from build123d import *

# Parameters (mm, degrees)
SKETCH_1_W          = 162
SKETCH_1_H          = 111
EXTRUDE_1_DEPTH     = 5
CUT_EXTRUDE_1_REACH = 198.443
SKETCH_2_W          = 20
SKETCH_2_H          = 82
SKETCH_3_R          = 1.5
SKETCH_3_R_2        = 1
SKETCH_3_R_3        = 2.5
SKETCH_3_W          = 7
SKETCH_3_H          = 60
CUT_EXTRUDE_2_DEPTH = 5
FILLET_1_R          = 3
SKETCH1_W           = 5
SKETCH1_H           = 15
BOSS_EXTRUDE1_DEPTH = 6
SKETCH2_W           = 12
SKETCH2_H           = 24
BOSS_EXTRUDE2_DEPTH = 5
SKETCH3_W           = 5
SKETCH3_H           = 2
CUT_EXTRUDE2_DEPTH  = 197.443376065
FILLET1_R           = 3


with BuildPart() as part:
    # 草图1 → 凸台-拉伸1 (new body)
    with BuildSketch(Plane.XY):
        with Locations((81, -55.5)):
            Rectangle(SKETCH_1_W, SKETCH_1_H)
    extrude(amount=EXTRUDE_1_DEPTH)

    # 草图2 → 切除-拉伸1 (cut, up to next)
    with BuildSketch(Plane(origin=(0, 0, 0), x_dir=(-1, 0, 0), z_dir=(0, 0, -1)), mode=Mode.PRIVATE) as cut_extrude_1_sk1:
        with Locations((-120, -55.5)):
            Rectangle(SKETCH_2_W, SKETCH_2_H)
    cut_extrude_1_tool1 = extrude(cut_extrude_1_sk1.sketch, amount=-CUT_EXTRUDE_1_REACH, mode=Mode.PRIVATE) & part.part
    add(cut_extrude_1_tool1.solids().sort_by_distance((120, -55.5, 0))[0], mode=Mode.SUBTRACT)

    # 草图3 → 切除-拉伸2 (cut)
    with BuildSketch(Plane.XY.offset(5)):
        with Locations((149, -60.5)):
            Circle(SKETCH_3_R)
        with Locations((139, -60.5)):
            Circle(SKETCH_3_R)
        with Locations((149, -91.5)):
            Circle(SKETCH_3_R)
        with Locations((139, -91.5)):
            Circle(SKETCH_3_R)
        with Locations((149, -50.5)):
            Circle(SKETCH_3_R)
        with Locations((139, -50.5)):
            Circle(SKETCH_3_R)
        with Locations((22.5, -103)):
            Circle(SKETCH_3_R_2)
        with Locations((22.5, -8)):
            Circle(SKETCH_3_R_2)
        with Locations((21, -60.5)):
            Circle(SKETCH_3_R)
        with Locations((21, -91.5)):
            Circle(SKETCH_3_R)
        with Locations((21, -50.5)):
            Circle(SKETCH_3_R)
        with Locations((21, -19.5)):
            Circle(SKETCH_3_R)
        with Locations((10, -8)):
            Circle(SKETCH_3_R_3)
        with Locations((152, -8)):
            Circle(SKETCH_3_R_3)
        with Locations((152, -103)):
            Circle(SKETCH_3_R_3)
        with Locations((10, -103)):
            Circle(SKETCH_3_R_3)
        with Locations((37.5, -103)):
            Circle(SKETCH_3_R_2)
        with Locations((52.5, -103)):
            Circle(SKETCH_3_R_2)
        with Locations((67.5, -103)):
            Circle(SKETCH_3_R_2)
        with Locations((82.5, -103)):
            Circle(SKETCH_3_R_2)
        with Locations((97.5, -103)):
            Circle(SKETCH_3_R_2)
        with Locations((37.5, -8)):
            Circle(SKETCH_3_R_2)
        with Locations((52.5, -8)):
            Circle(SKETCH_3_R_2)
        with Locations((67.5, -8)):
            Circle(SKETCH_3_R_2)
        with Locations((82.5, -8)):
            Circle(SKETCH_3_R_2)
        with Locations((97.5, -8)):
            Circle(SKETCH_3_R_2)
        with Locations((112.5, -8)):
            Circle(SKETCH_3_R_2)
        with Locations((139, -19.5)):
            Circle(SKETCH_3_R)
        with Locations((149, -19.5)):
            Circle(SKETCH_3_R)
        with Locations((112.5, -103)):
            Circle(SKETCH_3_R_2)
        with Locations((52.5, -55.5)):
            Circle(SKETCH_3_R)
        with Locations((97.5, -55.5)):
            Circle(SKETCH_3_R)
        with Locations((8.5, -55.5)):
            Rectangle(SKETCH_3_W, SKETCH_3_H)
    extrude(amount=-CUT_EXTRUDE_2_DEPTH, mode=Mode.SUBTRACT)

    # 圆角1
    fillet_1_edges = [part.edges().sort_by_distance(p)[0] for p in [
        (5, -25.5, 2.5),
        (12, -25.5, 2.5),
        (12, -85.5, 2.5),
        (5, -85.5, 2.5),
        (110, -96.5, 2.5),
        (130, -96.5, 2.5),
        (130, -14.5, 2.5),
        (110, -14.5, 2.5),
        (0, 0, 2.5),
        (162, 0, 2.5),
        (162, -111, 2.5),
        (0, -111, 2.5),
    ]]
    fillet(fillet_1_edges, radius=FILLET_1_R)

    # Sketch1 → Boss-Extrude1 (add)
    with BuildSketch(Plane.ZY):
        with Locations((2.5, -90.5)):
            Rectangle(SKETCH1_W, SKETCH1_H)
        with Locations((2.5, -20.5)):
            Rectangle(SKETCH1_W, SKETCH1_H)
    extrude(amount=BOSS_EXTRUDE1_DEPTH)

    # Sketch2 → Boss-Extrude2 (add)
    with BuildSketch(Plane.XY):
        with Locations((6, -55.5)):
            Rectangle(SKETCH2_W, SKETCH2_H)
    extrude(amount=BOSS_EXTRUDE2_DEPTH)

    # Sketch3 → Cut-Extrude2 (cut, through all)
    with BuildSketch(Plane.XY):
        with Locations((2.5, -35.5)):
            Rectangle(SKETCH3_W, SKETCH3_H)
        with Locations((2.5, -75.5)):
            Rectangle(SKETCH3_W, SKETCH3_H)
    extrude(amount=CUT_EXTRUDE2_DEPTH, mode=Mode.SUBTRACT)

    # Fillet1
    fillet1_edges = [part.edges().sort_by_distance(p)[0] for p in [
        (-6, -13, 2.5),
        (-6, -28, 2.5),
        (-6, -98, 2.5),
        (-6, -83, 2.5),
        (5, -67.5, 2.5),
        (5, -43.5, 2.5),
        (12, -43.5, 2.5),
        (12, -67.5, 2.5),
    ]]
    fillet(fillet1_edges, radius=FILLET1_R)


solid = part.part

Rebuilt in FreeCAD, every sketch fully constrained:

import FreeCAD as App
import Part
import Sketcher
from FreeCAD import Vector


def edges_at(feature, points):
    """Names of the edges that pass closest to the given points."""
    edges = feature.Shape.Edges
    near = lambda p: min(range(len(edges)), key=lambda i: edges[i].distToShape(Part.Vertex(*p))[0])
    return sorted({f"Edge{near(p) + 1}" for p in points})

doc = App.newDocument("Part")
body = doc.addObject("PartDesign::Body", "Body")

# Sketch on XY plane
sketch1 = doc.addObject("Sketcher::SketchObject", "Sketch")
body.addObject(sketch1)
sketch1.AttachmentSupport = (doc.XY_Plane, [""])
sketch1.MapMode = "FlatFace"
sketch1.addGeometry(Part.LineSegment(Vector(0, 0, 0), Vector(0, -111, 0)), False)
sketch1.addGeometry(Part.LineSegment(Vector(0, -111, 0), Vector(162, -111, 0)), False)
sketch1.addGeometry(Part.LineSegment(Vector(162, -111, 0), Vector(162, 0, 0)), False)
sketch1.addGeometry(Part.LineSegment(Vector(162, 0, 0), Vector(0, 0, 0)), False)
sketch1.addConstraint(Sketcher.Constraint("Coincident", 0, 2, 1, 1))
sketch1.addConstraint(Sketcher.Constraint("Coincident", 1, 2, 2, 1))
sketch1.addConstraint(Sketcher.Constraint("Coincident", 2, 2, 3, 1))
sketch1.addConstraint(Sketcher.Constraint("Coincident", 3, 2, 0, 1))
sketch1.addConstraint(Sketcher.Constraint("Vertical", 0))
sketch1.addConstraint(Sketcher.Constraint("Horizontal", 1))
sketch1.addConstraint(Sketcher.Constraint("Vertical", 2))
sketch1.addConstraint(Sketcher.Constraint("Horizontal", 3))
sketch1.addConstraint(Sketcher.Constraint("Coincident", 3, 2, -1, 1))
sketch1.addConstraint(Sketcher.Constraint("DistanceX", 1, 1, 1, 2, 162.0))
sketch1.addConstraint(Sketcher.Constraint("DistanceY", 0, 2, 0, 1, 111.0))
pad1 = doc.addObject("PartDesign::Pad", "Pad")
body.addObject(pad1)
pad1.Profile = sketch1
pad1.Length = 5

# Sketch on XY plane
sketch2 = doc.addObject("Sketcher::SketchObject", "Sketch001")
body.addObject(sketch2)
sketch2.AttachmentSupport = (doc.XY_Plane, [""])
sketch2.MapMode = "FlatFace"
sketch2.addGeometry(Part.LineSegment(Vector(130, -14, 0), Vector(130, -96, 0)), False)
sketch2.addGeometry(Part.LineSegment(Vector(130, -96, 0), Vector(110, -96, 0)), False)
sketch2.addGeometry(Part.LineSegment(Vector(110, -96, 0), Vector(110, -14, 0)), False)
sketch2.addGeometry(Part.LineSegment(Vector(110, -14, 0), Vector(130, -14, 0)), False)
sketch2.addConstraint(Sketcher.Constraint("Coincident", 0, 2, 1, 1))
sketch2.addConstraint(Sketcher.Constraint("Coincident", 1, 2, 2, 1))
sketch2.addConstraint(Sketcher.Constraint("Coincident", 2, 2, 3, 1))
sketch2.addConstraint(Sketcher.Constraint("Coincident", 3, 2, 0, 1))
sketch2.addConstraint(Sketcher.Constraint("Vertical", 0))
sketch2.addConstraint(Sketcher.Constraint("Horizontal", 1))
sketch2.addConstraint(Sketcher.Constraint("Vertical", 2))
sketch2.addConstraint(Sketcher.Constraint("Horizontal", 3))
sketch2.addConstraint(Sketcher.Constraint("DistanceX", 1, 2, 1, 1, 20.0))
sketch2.addConstraint(Sketcher.Constraint("DistanceY", 0, 2, 0, 1, 82.0))
sketch2.addConstraint(Sketcher.Constraint("DistanceX", -1, 1, 0, 2, 130.0))
sketch2.addConstraint(Sketcher.Constraint("DistanceY", 0, 2, -1, 1, 96.5))
pocket1 = doc.addObject("PartDesign::Pocket", "Pocket")
body.addObject(pocket1)
pocket1.Profile = sketch2
pocket1.Type = "UpToFirst"
pocket1.Reversed = True

# Sketch on XY plane
sketch3 = doc.addObject("Sketcher::SketchObject", "Sketch002")
body.addObject(sketch3)
sketch3.AttachmentSupport = (doc.XY_Plane, [""])
sketch3.MapMode = "FlatFace"
sketch3.AttachmentOffset = App.Placement(Vector(0, 0, 5), App.Rotation())
sketch3.addGeometry(Part.Circle(Vector(149, -60.5, 0), Vector(0, 0, 1), 1.5), False)
sketch3.addGeometry(Part.Circle(Vector(139, -60.5, 0), Vector(0, 0, 1), 1.5), False)
sketch3.addGeometry(Part.Circle(Vector(149, -91.5, 0), Vector(0, 0, 1), 1.5), False)
sketch3.addGeometry(Part.Circle(Vector(139, -91.5, 0), Vector(0, 0, 1), 1.5), False)
sketch3.addGeometry(Part.Circle(Vector(149, -50.5, 0), Vector(0, 0, 1), 1.5), False)
sketch3.addGeometry(Part.Circle(Vector(139, -50.5, 0), Vector(0, 0, 1), 1.5), False)
sketch3.addGeometry(Part.Circle(Vector(22.5, -103, 0), Vector(0, 0, 1), 1), False)
sketch3.addGeometry(Part.Circle(Vector(22.5, -8, 0), Vector(0, 0, 1), 1), False)
sketch3.addGeometry(Part.Circle(Vector(21, -60.5, 0), Vector(0, 0, 1), 1.5), False)
sketch3.addGeometry(Part.Circle(Vector(21, -91.5, 0), Vector(0, 0, 1), 1.5), False)
sketch3.addGeometry(Part.Circle(Vector(21, -50.5, 0), Vector(0, 0, 1), 1.5), False)
sketch3.addGeometry(Part.Circle(Vector(21, -19.5, 0), Vector(0, 0, 1), 1.5), False)
sketch3.addGeometry(Part.Circle(Vector(10, -8, 0), Vector(0, 0, 1), 2.5), False)
sketch3.addGeometry(Part.Circle(Vector(152, -8, 0), Vector(0, 0, 1), 2.5), False)
sketch3.addGeometry(Part.Circle(Vector(152, -103, 0), Vector(0, 0, 1), 2.5), False)
sketch3.addGeometry(Part.Circle(Vector(10, -103, 0), Vector(0, 0, 1), 2.5), False)
sketch3.addGeometry(Part.Circle(Vector(37.5, -103, 0), Vector(0, 0, 1), 1), False)
sketch3.addGeometry(Part.Circle(Vector(52.5, -103, 0), Vector(0, 0, 1), 1), False)
sketch3.addGeometry(Part.Circle(Vector(67.5, -103, 0), Vector(0, 0, 1), 1), False)
sketch3.addGeometry(Part.Circle(Vector(82.5, -103, 0), Vector(0, 0, 1), 1), False)
sketch3.addGeometry(Part.Circle(Vector(97.5, -103, 0), Vector(0, 0, 1), 1), False)
sketch3.addGeometry(Part.Circle(Vector(37.5, -8, 0), Vector(0, 0, 1), 1), False)
sketch3.addGeometry(Part.Circle(Vector(52.5, -8, 0), Vector(0, 0, 1), 1), False)
sketch3.addGeometry(Part.Circle(Vector(67.5, -8, 0), Vector(0, 0, 1), 1), False)
sketch3.addGeometry(Part.Circle(Vector(82.5, -8, 0), Vector(0, 0, 1), 1), False)
sketch3.addGeometry(Part.Circle(Vector(97.5, -8, 0), Vector(0, 0, 1), 1), False)
sketch3.addGeometry(Part.Circle(Vector(112.5, -8, 0), Vector(0, 0, 1), 1), False)
sketch3.addGeometry(Part.Circle(Vector(139, -19.5, 0), Vector(0, 0, 1), 1.5), False)
sketch3.addGeometry(Part.Circle(Vector(149, -19.5, 0), Vector(0, 0, 1), 1.5), False)
sketch3.addGeometry(Part.Circle(Vector(112.5, -103, 0), Vector(0, 0, 1), 1), False)
sketch3.addGeometry(Part.Circle(Vector(52.5, -55.5, 0), Vector(0, 0, 1), 1.5), False)
sketch3.addGeometry(Part.Circle(Vector(97.5, -55.5, 0), Vector(0, 0, 1), 1.5), False)
sketch3.addGeometry(Part.LineSegment(Vector(5, -25.5, 0), Vector(5, -85.5, 0)), False)
sketch3.addGeometry(Part.LineSegment(Vector(5, -85.5, 0), Vector(12, -85.5, 0)), False)
sketch3.addGeometry(Part.LineSegment(Vector(12, -85.5, 0), Vector(12, -25.5, 0)), False)
sketch3.addGeometry(Part.LineSegment(Vector(12, -25.5, 0), Vector(5, -25.5, 0)), False)
sketch3.addConstraint(Sketcher.Constraint("Coincident", 32, 2, 33, 1))
sketch3.addConstraint(Sketcher.Constraint("Coincident", 33, 2, 34, 1))
sketch3.addConstraint(Sketcher.Constraint("Coincident", 34, 2, 35, 1))
sketch3.addConstraint(Sketcher.Constraint("Coincident", 35, 2, 32, 1))
sketch3.addConstraint(Sketcher.Constraint("Vertical", 32))
sketch3.addConstraint(Sketcher.Constraint("Horizontal", 33))
sketch3.addConstraint(Sketcher.Constraint("Vertical", 34))
sketch3.addConstraint(Sketcher.Constraint("Horizontal", 35))
sketch3.addConstraint(Sketcher.Constraint("Equal", 0, 1))
sketch3.addConstraint(Sketcher.Constraint("Equal", 1, 2))
sketch3.addConstraint(Sketcher.Constraint("Equal", 2, 3))
sketch3.addConstraint(Sketcher.Constraint("Equal", 3, 4))
sketch3.addConstraint(Sketcher.Constraint("Equal", 4, 5))
sketch3.addConstraint(Sketcher.Constraint("Equal", 6, 7))
sketch3.addConstraint(Sketcher.Constraint("Equal", 5, 8))
sketch3.addConstraint(Sketcher.Constraint("Equal", 8, 9))
sketch3.addConstraint(Sketcher.Constraint("Equal", 9, 10))
sketch3.addConstraint(Sketcher.Constraint("Equal", 10, 11))
sketch3.addConstraint(Sketcher.Constraint("Equal", 12, 13))
sketch3.addConstraint(Sketcher.Constraint("Equal", 13, 14))
sketch3.addConstraint(Sketcher.Constraint("Equal", 14, 15))
sketch3.addConstraint(Sketcher.Constraint("Equal", 7, 16))
sketch3.addConstraint(Sketcher.Constraint("Equal", 16, 17))
sketch3.addConstraint(Sketcher.Constraint("Equal", 17, 18))
sketch3.addConstraint(Sketcher.Constraint("Equal", 18, 19))
sketch3.addConstraint(Sketcher.Constraint("Equal", 19, 20))
sketch3.addConstraint(Sketcher.Constraint("Equal", 20, 21))
sketch3.addConstraint(Sketcher.Constraint("Equal", 21, 22))
sketch3.addConstraint(Sketcher.Constraint("Equal", 22, 23))
sketch3.addConstraint(Sketcher.Constraint("Equal", 23, 24))
sketch3.addConstraint(Sketcher.Constraint("Equal", 24, 25))
sketch3.addConstraint(Sketcher.Constraint("Equal", 25, 26))
sketch3.addConstraint(Sketcher.Constraint("Equal", 11, 27))
sketch3.addConstraint(Sketcher.Constraint("Equal", 27, 28))
sketch3.addConstraint(Sketcher.Constraint("Equal", 26, 29))
sketch3.addConstraint(Sketcher.Constraint("Equal", 28, 30))
sketch3.addConstraint(Sketcher.Constraint("Equal", 30, 31))
sketch3.addConstraint(Sketcher.Constraint("Horizontal", 0, 3, 1, 3))
sketch3.addConstraint(Sketcher.Constraint("Horizontal", 2, 3, 3, 3))
sketch3.addConstraint(Sketcher.Constraint("Horizontal", 4, 3, 5, 3))
sketch3.addConstraint(Sketcher.Constraint("Horizontal", 1, 3, 8, 3))
sketch3.addConstraint(Sketcher.Constraint("Horizontal", 3, 3, 9, 3))
sketch3.addConstraint(Sketcher.Constraint("Horizontal", 5, 3, 10, 3))
sketch3.addConstraint(Sketcher.Constraint("Horizontal", 7, 3, 12, 3))
sketch3.addConstraint(Sketcher.Constraint("Horizontal", 12, 3, 13, 3))
sketch3.addConstraint(Sketcher.Constraint("Horizontal", 6, 3, 14, 3))
sketch3.addConstraint(Sketcher.Constraint("Horizontal", 14, 3, 15, 3))
sketch3.addConstraint(Sketcher.Constraint("Horizontal", 15, 3, 16, 3))
sketch3.addConstraint(Sketcher.Constraint("Horizontal", 16, 3, 17, 3))
sketch3.addConstraint(Sketcher.Constraint("Horizontal", 17, 3, 18, 3))
sketch3.addConstraint(Sketcher.Constraint("Horizontal", 18, 3, 19, 3))
sketch3.addConstraint(Sketcher.Constraint("Horizontal", 19, 3, 20, 3))
sketch3.addConstraint(Sketcher.Constraint("Horizontal", 13, 3, 21, 3))
sketch3.addConstraint(Sketcher.Constraint("Horizontal", 21, 3, 22, 3))
sketch3.addConstraint(Sketcher.Constraint("Horizontal", 22, 3, 23, 3))
sketch3.addConstraint(Sketcher.Constraint("Horizontal", 23, 3, 24, 3))
sketch3.addConstraint(Sketcher.Constraint("Horizontal", 24, 3, 25, 3))
sketch3.addConstraint(Sketcher.Constraint("Horizontal", 25, 3, 26, 3))
sketch3.addConstraint(Sketcher.Constraint("Horizontal", 11, 3, 27, 3))
sketch3.addConstraint(Sketcher.Constraint("Horizontal", 27, 3, 28, 3))
sketch3.addConstraint(Sketcher.Constraint("Horizontal", 20, 3, 29, 3))
sketch3.addConstraint(Sketcher.Constraint("Horizontal", 30, 3, 31, 3))
sketch3.addConstraint(Sketcher.Constraint("Vertical", 0, 3, 2, 3))
sketch3.addConstraint(Sketcher.Constraint("Vertical", 1, 3, 3, 3))
sketch3.addConstraint(Sketcher.Constraint("Vertical", 2, 3, 4, 3))
sketch3.addConstraint(Sketcher.Constraint("Vertical", 3, 3, 5, 3))
sketch3.addConstraint(Sketcher.Constraint("Vertical", 6, 3, 7, 3))
sketch3.addConstraint(Sketcher.Constraint("Vertical", 8, 3, 9, 3))
sketch3.addConstraint(Sketcher.Constraint("Vertical", 9, 3, 10, 3))
sketch3.addConstraint(Sketcher.Constraint("Vertical", 10, 3, 11, 3))
sketch3.addConstraint(Sketcher.Constraint("Vertical", 13, 3, 14, 3))
sketch3.addConstraint(Sketcher.Constraint("Vertical", 12, 3, 15, 3))
sketch3.addConstraint(Sketcher.Constraint("Vertical", 16, 3, 21, 3))
sketch3.addConstraint(Sketcher.Constraint("Vertical", 17, 3, 22, 3))
sketch3.addConstraint(Sketcher.Constraint("Vertical", 18, 3, 23, 3))
sketch3.addConstraint(Sketcher.Constraint("Vertical", 19, 3, 24, 3))
sketch3.addConstraint(Sketcher.Constraint("Vertical", 20, 3, 25, 3))
sketch3.addConstraint(Sketcher.Constraint("Vertical", 5, 3, 27, 3))
sketch3.addConstraint(Sketcher.Constraint("Vertical", 4, 3, 28, 3))
sketch3.addConstraint(Sketcher.Constraint("Vertical", 26, 3, 29, 3))
sketch3.addConstraint(Sketcher.Constraint("Vertical", 22, 3, 30, 3))
sketch3.addConstraint(Sketcher.Constraint("Vertical", 25, 3, 31, 3))
sketch3.addConstraint(Sketcher.Constraint("Diameter", 0, 3.0))
sketch3.addConstraint(Sketcher.Constraint("Diameter", 6, 2.0))
sketch3.addConstraint(Sketcher.Constraint("Diameter", 12, 5.0))
sketch3.addConstraint(Sketcher.Constraint("DistanceX", 33, 1, 33, 2, 7.0))
sketch3.addConstraint(Sketcher.Constraint("DistanceY", 32, 2, 32, 1, 60.0))
sketch3.addConstraint(Sketcher.Constraint("DistanceX", -1, 1, 0, 3, 149.0))
sketch3.addConstraint(Sketcher.Constraint("DistanceX", -1, 1, 1, 3, 139.0))
sketch3.addConstraint(Sketcher.Constraint("DistanceY", 6, 3, -1, 1, 103.0))
sketch3.addConstraint(Sketcher.Constraint("DistanceY", 7, 3, -1, 1, 8.0))
sketch3.addConstraint(Sketcher.Constraint("DistanceX", -1, 1, 8, 3, 21.0))
sketch3.addConstraint(Sketcher.Constraint("DistanceX", -1, 1, 12, 3, 10.0))
sketch3.addConstraint(Sketcher.Constraint("DistanceX", -1, 1, 13, 3, 152.0))
sketch3.addConstraint(Sketcher.Constraint("DistanceX", -1, 1, 32, 2, 5.0))
sketch3.addConstraint(Sketcher.Constraint("DistanceY", 2, 3, 0, 3, 31.0))
sketch3.addConstraint(Sketcher.Constraint("DistanceY", 0, 3, 4, 3, 10.0))
sketch3.addConstraint(Sketcher.Constraint("DistanceY", 10, 3, 11, 3, 31.0))
sketch3.addConstraint(Sketcher.Constraint("DistanceX", 6, 3, 16, 3, 15.0))
sketch3.addConstraint(Sketcher.Constraint("DistanceX", 16, 3, 17, 3, 15.0))
sketch3.addConstraint(Sketcher.Constraint("DistanceX", 17, 3, 18, 3, 15.0))
sketch3.addConstraint(Sketcher.Constraint("DistanceX", 18, 3, 19, 3, 15.0))
sketch3.addConstraint(Sketcher.Constraint("DistanceX", 19, 3, 20, 3, 15.0))
sketch3.addConstraint(Sketcher.Constraint("DistanceX", 25, 3, 26, 3, 15.0))
sketch3.addConstraint(Sketcher.Constraint("DistanceY", 8, 3, 30, 3, 5.0))
sketch3.addConstraint(Sketcher.Constraint("DistanceY", 9, 3, 32, 2, 6.0))
sketch3.addConstraint(Sketcher.Constraint("DistanceY", 0, 3, -1, 1, 60.5))
sketch3.addConstraint(Sketcher.Constraint("DistanceX", -1, 1, 6, 3, 22.5))
pocket2 = doc.addObject("PartDesign::Pocket", "Pocket001")
body.addObject(pocket2)
pocket2.Profile = sketch3
pocket2.Length = 5
doc.recompute()

fillet = doc.addObject("PartDesign::Fillet", "Fillet")
body.addObject(fillet)
fillet.Base = (pocket2, edges_at(pocket2, [
    (5, -25.5, 2.5),
    (12, -25.5, 2.5),
    (12, -85.5, 2.5),
    (5, -85.5, 2.5),
    (110, -96.5, 2.5),
    (130, -96.5, 2.5),
    (130, -14.5, 2.5),
    (110, -14.5, 2.5),
    (0, 0, 2.5),
    (162, 0, 2.5),
    (162, -111, 2.5),
    (0, -111, 2.5),
]))
fillet.Radius = 3

# Sketch on YZ plane
sketch4 = doc.addObject("Sketcher::SketchObject", "Sketch003")
body.addObject(sketch4)
sketch4.AttachmentSupport = (doc.YZ_Plane, [""])
sketch4.MapMode = "FlatFace"
sketch4.addGeometry(Part.LineSegment(Vector(-83, 0, 0), Vector(-98, 0, 0)), False)
sketch4.addGeometry(Part.LineSegment(Vector(-98, 0, 0), Vector(-98, 5, 0)), False)
sketch4.addGeometry(Part.LineSegment(Vector(-98, 5, 0), Vector(-83, 5, 0)), False)
sketch4.addGeometry(Part.LineSegment(Vector(-83, 5, 0), Vector(-83, 0, 0)), False)
sketch4.addGeometry(Part.LineSegment(Vector(-13, 0, 0), Vector(-28, 0, 0)), False)
sketch4.addGeometry(Part.LineSegment(Vector(-28, 0, 0), Vector(-28, 5, 0)), False)
sketch4.addGeometry(Part.LineSegment(Vector(-28, 5, 0), Vector(-13, 5, 0)), False)
sketch4.addGeometry(Part.LineSegment(Vector(-13, 5, 0), Vector(-13, 0, 0)), False)
sketch4.addConstraint(Sketcher.Constraint("Coincident", 0, 2, 1, 1))
sketch4.addConstraint(Sketcher.Constraint("Coincident", 1, 2, 2, 1))
sketch4.addConstraint(Sketcher.Constraint("Coincident", 2, 2, 3, 1))
sketch4.addConstraint(Sketcher.Constraint("Coincident", 3, 2, 0, 1))
sketch4.addConstraint(Sketcher.Constraint("Coincident", 4, 2, 5, 1))
sketch4.addConstraint(Sketcher.Constraint("Coincident", 5, 2, 6, 1))
sketch4.addConstraint(Sketcher.Constraint("Coincident", 6, 2, 7, 1))
sketch4.addConstraint(Sketcher.Constraint("Coincident", 7, 2, 4, 1))
sketch4.addConstraint(Sketcher.Constraint("Horizontal", 0))
sketch4.addConstraint(Sketcher.Constraint("Vertical", 1))
sketch4.addConstraint(Sketcher.Constraint("Horizontal", 2))
sketch4.addConstraint(Sketcher.Constraint("Vertical", 3))
sketch4.addConstraint(Sketcher.Constraint("Horizontal", 4))
sketch4.addConstraint(Sketcher.Constraint("Vertical", 5))
sketch4.addConstraint(Sketcher.Constraint("Horizontal", 6))
sketch4.addConstraint(Sketcher.Constraint("Vertical", 7))
sketch4.addConstraint(Sketcher.Constraint("PointOnObject", 0, 2, -1))
sketch4.addConstraint(Sketcher.Constraint("PointOnObject", 4, 2, -1))
sketch4.addConstraint(Sketcher.Constraint("Horizontal", 2, 2, 5, 2))
sketch4.addConstraint(Sketcher.Constraint("Equal", 2, 4))
sketch4.addConstraint(Sketcher.Constraint("DistanceX", 0, 2, 0, 1, 15.0))
sketch4.addConstraint(Sketcher.Constraint("DistanceY", 1, 1, 1, 2, 5.0))
sketch4.addConstraint(Sketcher.Constraint("DistanceX", 0, 2, -1, 1, 98.0))
sketch4.addConstraint(Sketcher.Constraint("DistanceX", 4, 2, -1, 1, 28.0))
pad2 = doc.addObject("PartDesign::Pad", "Pad001")
body.addObject(pad2)
pad2.Profile = sketch4
pad2.Length = 6
pad2.Reversed = True

# Sketch on XY plane
sketch5 = doc.addObject("Sketcher::SketchObject", "Sketch004")
body.addObject(sketch5)
sketch5.AttachmentSupport = (doc.XY_Plane, [""])
sketch5.MapMode = "FlatFace"
sketch5.addGeometry(Part.LineSegment(Vector(0, -44, 0), Vector(0, -68, 0)), False)
sketch5.addGeometry(Part.LineSegment(Vector(0, -68, 0), Vector(12, -68, 0)), False)
sketch5.addGeometry(Part.LineSegment(Vector(12, -68, 0), Vector(12, -44, 0)), False)
sketch5.addGeometry(Part.LineSegment(Vector(12, -44, 0), Vector(0, -44, 0)), False)
sketch5.addConstraint(Sketcher.Constraint("Coincident", 0, 2, 1, 1))
sketch5.addConstraint(Sketcher.Constraint("Coincident", 1, 2, 2, 1))
sketch5.addConstraint(Sketcher.Constraint("Coincident", 2, 2, 3, 1))
sketch5.addConstraint(Sketcher.Constraint("Coincident", 3, 2, 0, 1))
sketch5.addConstraint(Sketcher.Constraint("Vertical", 0))
sketch5.addConstraint(Sketcher.Constraint("Horizontal", 1))
sketch5.addConstraint(Sketcher.Constraint("Vertical", 2))
sketch5.addConstraint(Sketcher.Constraint("Horizontal", 3))
sketch5.addConstraint(Sketcher.Constraint("PointOnObject", 0, 2, -2))
sketch5.addConstraint(Sketcher.Constraint("DistanceX", 1, 1, 1, 2, 12.0))
sketch5.addConstraint(Sketcher.Constraint("DistanceY", 0, 2, 0, 1, 24.0))
sketch5.addConstraint(Sketcher.Constraint("DistanceY", 0, 2, -1, 1, 67.5))
pad3 = doc.addObject("PartDesign::Pad", "Pad002")
body.addObject(pad3)
pad3.Profile = sketch5
pad3.Length = 5

# Sketch on XY plane
sketch6 = doc.addObject("Sketcher::SketchObject", "Sketch005")
body.addObject(sketch6)
sketch6.AttachmentSupport = (doc.XY_Plane, [""])
sketch6.MapMode = "FlatFace"
sketch6.addGeometry(Part.LineSegment(Vector(0, -34.5, 0), Vector(0, -36.5, 0)), False)
sketch6.addGeometry(Part.LineSegment(Vector(0, -36.5, 0), Vector(5, -36.5, 0)), False)
sketch6.addGeometry(Part.LineSegment(Vector(5, -36.5, 0), Vector(5, -34.5, 0)), False)
sketch6.addGeometry(Part.LineSegment(Vector(5, -34.5, 0), Vector(0, -34.5, 0)), False)
sketch6.addGeometry(Part.LineSegment(Vector(0, -74.5, 0), Vector(0, -76.5, 0)), False)
sketch6.addGeometry(Part.LineSegment(Vector(0, -76.5, 0), Vector(5, -76.5, 0)), False)
sketch6.addGeometry(Part.LineSegment(Vector(5, -76.5, 0), Vector(5, -74.5, 0)), False)
sketch6.addGeometry(Part.LineSegment(Vector(5, -74.5, 0), Vector(0, -74.5, 0)), False)
sketch6.addConstraint(Sketcher.Constraint("Coincident", 0, 2, 1, 1))
sketch6.addConstraint(Sketcher.Constraint("Coincident", 1, 2, 2, 1))
sketch6.addConstraint(Sketcher.Constraint("Coincident", 2, 2, 3, 1))
sketch6.addConstraint(Sketcher.Constraint("Coincident", 3, 2, 0, 1))
sketch6.addConstraint(Sketcher.Constraint("Coincident", 4, 2, 5, 1))
sketch6.addConstraint(Sketcher.Constraint("Coincident", 5, 2, 6, 1))
sketch6.addConstraint(Sketcher.Constraint("Coincident", 6, 2, 7, 1))
sketch6.addConstraint(Sketcher.Constraint("Coincident", 7, 2, 4, 1))
sketch6.addConstraint(Sketcher.Constraint("Vertical", 0))
sketch6.addConstraint(Sketcher.Constraint("Horizontal", 1))
sketch6.addConstraint(Sketcher.Constraint("Vertical", 2))
sketch6.addConstraint(Sketcher.Constraint("Horizontal", 3))
sketch6.addConstraint(Sketcher.Constraint("Vertical", 4))
sketch6.addConstraint(Sketcher.Constraint("Horizontal", 5))
sketch6.addConstraint(Sketcher.Constraint("Vertical", 6))
sketch6.addConstraint(Sketcher.Constraint("Horizontal", 7))
sketch6.addConstraint(Sketcher.Constraint("PointOnObject", 0, 2, -2))
sketch6.addConstraint(Sketcher.Constraint("PointOnObject", 4, 2, -2))
sketch6.addConstraint(Sketcher.Constraint("Vertical", 2, 2, 5, 2))
sketch6.addConstraint(Sketcher.Constraint("Equal", 2, 4))
sketch6.addConstraint(Sketcher.Constraint("DistanceX", 1, 1, 1, 2, 5.0))
sketch6.addConstraint(Sketcher.Constraint("DistanceY", 0, 2, 0, 1, 2.0))
sketch6.addConstraint(Sketcher.Constraint("DistanceY", 4, 2, 0, 2, 40.0))
sketch6.addConstraint(Sketcher.Constraint("DistanceY", 0, 2, -1, 1, 36.5))
pocket3 = doc.addObject("PartDesign::Pocket", "Pocket002")
body.addObject(pocket3)
pocket3.Profile = sketch6
pocket3.Type = "ThroughAll"
pocket3.Reversed = True
doc.recompute()

fillet2 = doc.addObject("PartDesign::Fillet", "Fillet001")
body.addObject(fillet2)
fillet2.Base = (pocket3, edges_at(pocket3, [
    (-6, -13, 2.5),
    (-6, -28, 2.5),
    (-6, -98, 2.5),
    (-6, -83, 2.5),
    (5, -67.5, 2.5),
    (5, -43.5, 2.5),
    (12, -43.5, 2.5),
    (12, -67.5, 2.5),
]))
fillet2.Radius = 3

doc.recompute()
